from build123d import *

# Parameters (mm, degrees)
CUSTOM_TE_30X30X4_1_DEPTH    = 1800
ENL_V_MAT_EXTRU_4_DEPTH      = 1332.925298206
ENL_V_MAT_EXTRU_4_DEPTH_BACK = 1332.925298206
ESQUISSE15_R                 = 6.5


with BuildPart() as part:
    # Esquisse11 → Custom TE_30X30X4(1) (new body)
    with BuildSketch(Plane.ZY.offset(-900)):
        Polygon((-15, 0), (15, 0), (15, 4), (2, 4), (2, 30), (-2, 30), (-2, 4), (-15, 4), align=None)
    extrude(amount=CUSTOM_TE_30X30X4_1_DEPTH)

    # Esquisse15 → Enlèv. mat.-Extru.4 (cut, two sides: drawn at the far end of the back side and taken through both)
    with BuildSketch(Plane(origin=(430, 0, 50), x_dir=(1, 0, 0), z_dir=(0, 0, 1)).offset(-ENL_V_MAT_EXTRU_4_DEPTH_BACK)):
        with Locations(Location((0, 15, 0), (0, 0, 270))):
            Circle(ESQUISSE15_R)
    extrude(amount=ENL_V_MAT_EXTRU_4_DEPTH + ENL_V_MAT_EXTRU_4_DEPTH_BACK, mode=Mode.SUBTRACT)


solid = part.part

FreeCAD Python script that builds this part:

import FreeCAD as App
import Part
import Sketcher
from FreeCAD import Vector

doc = App.newDocument("Part")
body = doc.addObject("PartDesign::Body", "Body")

sketch1 = body.newObject("Sketcher::SketchObject", "Sketch")
sketch1.AttachmentSupport = (doc.getObject("YZ_Plane"), [""])
sketch1.MapMode = "FlatFace"
sketch1.AttachmentOffset = App.Placement(Vector(0, 0, 900), App.Rotation())
sketch1.addGeometry([
    Part.LineSegment(Vector(0, -15, 0), Vector(0, 15, 0)),
    Part.LineSegment(Vector(0, 15, 0), Vector(4, 15, 0)),
    Part.LineSegment(Vector(4, 15, 0), Vector(4, 2, 0)),
    Part.LineSegment(Vector(4, 2, 0), Vector(30, 2, 0)),
    Part.LineSegment(Vector(30, 2, 0), Vector(30, -2, 0)),
    Part.LineSegment(Vector(30, -2, 0), Vector(4, -2, 0)),
    Part.LineSegment(Vector(4, -2, 0), Vector(4, -15, 0)),
    Part.LineSegment(Vector(4, -15, 0), Vector(0, -15, 0)),
], False)
sketch1.addConstraint([
    Sketcher.Constraint("Coincident", 0, 2, 1, 1),
    Sketcher.Constraint("Coincident", 1, 2, 2, 1),
    Sketcher.Constraint("Coincident", 2, 2, 3, 1),
    Sketcher.Constraint("Coincident", 3, 2, 4, 1),
    Sketcher.Constraint("Coincident", 4, 2, 5, 1),
    Sketcher.Constraint("Coincident", 5, 2, 6, 1),
    Sketcher.Constraint("Coincident", 6, 2, 7, 1),
    Sketcher.Constraint("Coincident", 7, 2, 0, 1),
    Sketcher.Constraint("Vertical", 0),
    Sketcher.Constraint("Horizontal", 1),
    Sketcher.Constraint("Vertical", 2),
    Sketcher.Constraint("Horizontal", 3),
    Sketcher.Constraint("Vertical", 4),
    Sketcher.Constraint("Horizontal", 5),
    Sketcher.Constraint("Vertical", 6),
    Sketcher.Constraint("Horizontal", 7),
    Sketcher.Constraint("Symmetric", 0, 2, 7, 2, -1, 1),
    Sketcher.Constraint("Symmetric", 2, 2, 5, 2, -1),
    Sketcher.Constraint("Equal", 7, 4),
    Sketcher.Constraint("DistanceX", 1, 1, 1, 2, 4.0),
    Sketcher.Constraint("DistanceX", 3, 1, 3, 2, 26.0),
    Sketcher.Constraint("DistanceY", 0, 1, 0, 2, 30.0),
])
pad1 = body.newObject("PartDesign::Pad", "Pad")
pad1.Profile = sketch1
pad1.Length = 1800
pad1.Reversed = True

sketch2 = body.newObject("Sketcher::SketchObject", "Sketch001")
sketch2.AttachmentSupport = (doc.getObject("XY_Plane"), [""])
sketch2.MapMode = "FlatFace"
sketch2.AttachmentOffset = App.Placement(Vector(0, 0, 50), App.Rotation())
sketch2.addGeometry(Part.Circle(Vector(430, 15, 0), Vector(0, 0, 1), 6.5), False)
sketch2.addConstraint([
    Sketcher.Constraint("Diameter", 0, 13.0),
    Sketcher.Constraint("DistanceX", -1, 1, 0, 3, 430.0),
    Sketcher.Constraint("DistanceY", -1, 1, 0, 3, 15.0),
])
pocket1 = body.newObject("PartDesign::Pocket", "Pocket")
pocket1.Profile = sketch2
pocket1.Type = "ThroughAll"
pocket1.Midplane = True

doc.recompute()
